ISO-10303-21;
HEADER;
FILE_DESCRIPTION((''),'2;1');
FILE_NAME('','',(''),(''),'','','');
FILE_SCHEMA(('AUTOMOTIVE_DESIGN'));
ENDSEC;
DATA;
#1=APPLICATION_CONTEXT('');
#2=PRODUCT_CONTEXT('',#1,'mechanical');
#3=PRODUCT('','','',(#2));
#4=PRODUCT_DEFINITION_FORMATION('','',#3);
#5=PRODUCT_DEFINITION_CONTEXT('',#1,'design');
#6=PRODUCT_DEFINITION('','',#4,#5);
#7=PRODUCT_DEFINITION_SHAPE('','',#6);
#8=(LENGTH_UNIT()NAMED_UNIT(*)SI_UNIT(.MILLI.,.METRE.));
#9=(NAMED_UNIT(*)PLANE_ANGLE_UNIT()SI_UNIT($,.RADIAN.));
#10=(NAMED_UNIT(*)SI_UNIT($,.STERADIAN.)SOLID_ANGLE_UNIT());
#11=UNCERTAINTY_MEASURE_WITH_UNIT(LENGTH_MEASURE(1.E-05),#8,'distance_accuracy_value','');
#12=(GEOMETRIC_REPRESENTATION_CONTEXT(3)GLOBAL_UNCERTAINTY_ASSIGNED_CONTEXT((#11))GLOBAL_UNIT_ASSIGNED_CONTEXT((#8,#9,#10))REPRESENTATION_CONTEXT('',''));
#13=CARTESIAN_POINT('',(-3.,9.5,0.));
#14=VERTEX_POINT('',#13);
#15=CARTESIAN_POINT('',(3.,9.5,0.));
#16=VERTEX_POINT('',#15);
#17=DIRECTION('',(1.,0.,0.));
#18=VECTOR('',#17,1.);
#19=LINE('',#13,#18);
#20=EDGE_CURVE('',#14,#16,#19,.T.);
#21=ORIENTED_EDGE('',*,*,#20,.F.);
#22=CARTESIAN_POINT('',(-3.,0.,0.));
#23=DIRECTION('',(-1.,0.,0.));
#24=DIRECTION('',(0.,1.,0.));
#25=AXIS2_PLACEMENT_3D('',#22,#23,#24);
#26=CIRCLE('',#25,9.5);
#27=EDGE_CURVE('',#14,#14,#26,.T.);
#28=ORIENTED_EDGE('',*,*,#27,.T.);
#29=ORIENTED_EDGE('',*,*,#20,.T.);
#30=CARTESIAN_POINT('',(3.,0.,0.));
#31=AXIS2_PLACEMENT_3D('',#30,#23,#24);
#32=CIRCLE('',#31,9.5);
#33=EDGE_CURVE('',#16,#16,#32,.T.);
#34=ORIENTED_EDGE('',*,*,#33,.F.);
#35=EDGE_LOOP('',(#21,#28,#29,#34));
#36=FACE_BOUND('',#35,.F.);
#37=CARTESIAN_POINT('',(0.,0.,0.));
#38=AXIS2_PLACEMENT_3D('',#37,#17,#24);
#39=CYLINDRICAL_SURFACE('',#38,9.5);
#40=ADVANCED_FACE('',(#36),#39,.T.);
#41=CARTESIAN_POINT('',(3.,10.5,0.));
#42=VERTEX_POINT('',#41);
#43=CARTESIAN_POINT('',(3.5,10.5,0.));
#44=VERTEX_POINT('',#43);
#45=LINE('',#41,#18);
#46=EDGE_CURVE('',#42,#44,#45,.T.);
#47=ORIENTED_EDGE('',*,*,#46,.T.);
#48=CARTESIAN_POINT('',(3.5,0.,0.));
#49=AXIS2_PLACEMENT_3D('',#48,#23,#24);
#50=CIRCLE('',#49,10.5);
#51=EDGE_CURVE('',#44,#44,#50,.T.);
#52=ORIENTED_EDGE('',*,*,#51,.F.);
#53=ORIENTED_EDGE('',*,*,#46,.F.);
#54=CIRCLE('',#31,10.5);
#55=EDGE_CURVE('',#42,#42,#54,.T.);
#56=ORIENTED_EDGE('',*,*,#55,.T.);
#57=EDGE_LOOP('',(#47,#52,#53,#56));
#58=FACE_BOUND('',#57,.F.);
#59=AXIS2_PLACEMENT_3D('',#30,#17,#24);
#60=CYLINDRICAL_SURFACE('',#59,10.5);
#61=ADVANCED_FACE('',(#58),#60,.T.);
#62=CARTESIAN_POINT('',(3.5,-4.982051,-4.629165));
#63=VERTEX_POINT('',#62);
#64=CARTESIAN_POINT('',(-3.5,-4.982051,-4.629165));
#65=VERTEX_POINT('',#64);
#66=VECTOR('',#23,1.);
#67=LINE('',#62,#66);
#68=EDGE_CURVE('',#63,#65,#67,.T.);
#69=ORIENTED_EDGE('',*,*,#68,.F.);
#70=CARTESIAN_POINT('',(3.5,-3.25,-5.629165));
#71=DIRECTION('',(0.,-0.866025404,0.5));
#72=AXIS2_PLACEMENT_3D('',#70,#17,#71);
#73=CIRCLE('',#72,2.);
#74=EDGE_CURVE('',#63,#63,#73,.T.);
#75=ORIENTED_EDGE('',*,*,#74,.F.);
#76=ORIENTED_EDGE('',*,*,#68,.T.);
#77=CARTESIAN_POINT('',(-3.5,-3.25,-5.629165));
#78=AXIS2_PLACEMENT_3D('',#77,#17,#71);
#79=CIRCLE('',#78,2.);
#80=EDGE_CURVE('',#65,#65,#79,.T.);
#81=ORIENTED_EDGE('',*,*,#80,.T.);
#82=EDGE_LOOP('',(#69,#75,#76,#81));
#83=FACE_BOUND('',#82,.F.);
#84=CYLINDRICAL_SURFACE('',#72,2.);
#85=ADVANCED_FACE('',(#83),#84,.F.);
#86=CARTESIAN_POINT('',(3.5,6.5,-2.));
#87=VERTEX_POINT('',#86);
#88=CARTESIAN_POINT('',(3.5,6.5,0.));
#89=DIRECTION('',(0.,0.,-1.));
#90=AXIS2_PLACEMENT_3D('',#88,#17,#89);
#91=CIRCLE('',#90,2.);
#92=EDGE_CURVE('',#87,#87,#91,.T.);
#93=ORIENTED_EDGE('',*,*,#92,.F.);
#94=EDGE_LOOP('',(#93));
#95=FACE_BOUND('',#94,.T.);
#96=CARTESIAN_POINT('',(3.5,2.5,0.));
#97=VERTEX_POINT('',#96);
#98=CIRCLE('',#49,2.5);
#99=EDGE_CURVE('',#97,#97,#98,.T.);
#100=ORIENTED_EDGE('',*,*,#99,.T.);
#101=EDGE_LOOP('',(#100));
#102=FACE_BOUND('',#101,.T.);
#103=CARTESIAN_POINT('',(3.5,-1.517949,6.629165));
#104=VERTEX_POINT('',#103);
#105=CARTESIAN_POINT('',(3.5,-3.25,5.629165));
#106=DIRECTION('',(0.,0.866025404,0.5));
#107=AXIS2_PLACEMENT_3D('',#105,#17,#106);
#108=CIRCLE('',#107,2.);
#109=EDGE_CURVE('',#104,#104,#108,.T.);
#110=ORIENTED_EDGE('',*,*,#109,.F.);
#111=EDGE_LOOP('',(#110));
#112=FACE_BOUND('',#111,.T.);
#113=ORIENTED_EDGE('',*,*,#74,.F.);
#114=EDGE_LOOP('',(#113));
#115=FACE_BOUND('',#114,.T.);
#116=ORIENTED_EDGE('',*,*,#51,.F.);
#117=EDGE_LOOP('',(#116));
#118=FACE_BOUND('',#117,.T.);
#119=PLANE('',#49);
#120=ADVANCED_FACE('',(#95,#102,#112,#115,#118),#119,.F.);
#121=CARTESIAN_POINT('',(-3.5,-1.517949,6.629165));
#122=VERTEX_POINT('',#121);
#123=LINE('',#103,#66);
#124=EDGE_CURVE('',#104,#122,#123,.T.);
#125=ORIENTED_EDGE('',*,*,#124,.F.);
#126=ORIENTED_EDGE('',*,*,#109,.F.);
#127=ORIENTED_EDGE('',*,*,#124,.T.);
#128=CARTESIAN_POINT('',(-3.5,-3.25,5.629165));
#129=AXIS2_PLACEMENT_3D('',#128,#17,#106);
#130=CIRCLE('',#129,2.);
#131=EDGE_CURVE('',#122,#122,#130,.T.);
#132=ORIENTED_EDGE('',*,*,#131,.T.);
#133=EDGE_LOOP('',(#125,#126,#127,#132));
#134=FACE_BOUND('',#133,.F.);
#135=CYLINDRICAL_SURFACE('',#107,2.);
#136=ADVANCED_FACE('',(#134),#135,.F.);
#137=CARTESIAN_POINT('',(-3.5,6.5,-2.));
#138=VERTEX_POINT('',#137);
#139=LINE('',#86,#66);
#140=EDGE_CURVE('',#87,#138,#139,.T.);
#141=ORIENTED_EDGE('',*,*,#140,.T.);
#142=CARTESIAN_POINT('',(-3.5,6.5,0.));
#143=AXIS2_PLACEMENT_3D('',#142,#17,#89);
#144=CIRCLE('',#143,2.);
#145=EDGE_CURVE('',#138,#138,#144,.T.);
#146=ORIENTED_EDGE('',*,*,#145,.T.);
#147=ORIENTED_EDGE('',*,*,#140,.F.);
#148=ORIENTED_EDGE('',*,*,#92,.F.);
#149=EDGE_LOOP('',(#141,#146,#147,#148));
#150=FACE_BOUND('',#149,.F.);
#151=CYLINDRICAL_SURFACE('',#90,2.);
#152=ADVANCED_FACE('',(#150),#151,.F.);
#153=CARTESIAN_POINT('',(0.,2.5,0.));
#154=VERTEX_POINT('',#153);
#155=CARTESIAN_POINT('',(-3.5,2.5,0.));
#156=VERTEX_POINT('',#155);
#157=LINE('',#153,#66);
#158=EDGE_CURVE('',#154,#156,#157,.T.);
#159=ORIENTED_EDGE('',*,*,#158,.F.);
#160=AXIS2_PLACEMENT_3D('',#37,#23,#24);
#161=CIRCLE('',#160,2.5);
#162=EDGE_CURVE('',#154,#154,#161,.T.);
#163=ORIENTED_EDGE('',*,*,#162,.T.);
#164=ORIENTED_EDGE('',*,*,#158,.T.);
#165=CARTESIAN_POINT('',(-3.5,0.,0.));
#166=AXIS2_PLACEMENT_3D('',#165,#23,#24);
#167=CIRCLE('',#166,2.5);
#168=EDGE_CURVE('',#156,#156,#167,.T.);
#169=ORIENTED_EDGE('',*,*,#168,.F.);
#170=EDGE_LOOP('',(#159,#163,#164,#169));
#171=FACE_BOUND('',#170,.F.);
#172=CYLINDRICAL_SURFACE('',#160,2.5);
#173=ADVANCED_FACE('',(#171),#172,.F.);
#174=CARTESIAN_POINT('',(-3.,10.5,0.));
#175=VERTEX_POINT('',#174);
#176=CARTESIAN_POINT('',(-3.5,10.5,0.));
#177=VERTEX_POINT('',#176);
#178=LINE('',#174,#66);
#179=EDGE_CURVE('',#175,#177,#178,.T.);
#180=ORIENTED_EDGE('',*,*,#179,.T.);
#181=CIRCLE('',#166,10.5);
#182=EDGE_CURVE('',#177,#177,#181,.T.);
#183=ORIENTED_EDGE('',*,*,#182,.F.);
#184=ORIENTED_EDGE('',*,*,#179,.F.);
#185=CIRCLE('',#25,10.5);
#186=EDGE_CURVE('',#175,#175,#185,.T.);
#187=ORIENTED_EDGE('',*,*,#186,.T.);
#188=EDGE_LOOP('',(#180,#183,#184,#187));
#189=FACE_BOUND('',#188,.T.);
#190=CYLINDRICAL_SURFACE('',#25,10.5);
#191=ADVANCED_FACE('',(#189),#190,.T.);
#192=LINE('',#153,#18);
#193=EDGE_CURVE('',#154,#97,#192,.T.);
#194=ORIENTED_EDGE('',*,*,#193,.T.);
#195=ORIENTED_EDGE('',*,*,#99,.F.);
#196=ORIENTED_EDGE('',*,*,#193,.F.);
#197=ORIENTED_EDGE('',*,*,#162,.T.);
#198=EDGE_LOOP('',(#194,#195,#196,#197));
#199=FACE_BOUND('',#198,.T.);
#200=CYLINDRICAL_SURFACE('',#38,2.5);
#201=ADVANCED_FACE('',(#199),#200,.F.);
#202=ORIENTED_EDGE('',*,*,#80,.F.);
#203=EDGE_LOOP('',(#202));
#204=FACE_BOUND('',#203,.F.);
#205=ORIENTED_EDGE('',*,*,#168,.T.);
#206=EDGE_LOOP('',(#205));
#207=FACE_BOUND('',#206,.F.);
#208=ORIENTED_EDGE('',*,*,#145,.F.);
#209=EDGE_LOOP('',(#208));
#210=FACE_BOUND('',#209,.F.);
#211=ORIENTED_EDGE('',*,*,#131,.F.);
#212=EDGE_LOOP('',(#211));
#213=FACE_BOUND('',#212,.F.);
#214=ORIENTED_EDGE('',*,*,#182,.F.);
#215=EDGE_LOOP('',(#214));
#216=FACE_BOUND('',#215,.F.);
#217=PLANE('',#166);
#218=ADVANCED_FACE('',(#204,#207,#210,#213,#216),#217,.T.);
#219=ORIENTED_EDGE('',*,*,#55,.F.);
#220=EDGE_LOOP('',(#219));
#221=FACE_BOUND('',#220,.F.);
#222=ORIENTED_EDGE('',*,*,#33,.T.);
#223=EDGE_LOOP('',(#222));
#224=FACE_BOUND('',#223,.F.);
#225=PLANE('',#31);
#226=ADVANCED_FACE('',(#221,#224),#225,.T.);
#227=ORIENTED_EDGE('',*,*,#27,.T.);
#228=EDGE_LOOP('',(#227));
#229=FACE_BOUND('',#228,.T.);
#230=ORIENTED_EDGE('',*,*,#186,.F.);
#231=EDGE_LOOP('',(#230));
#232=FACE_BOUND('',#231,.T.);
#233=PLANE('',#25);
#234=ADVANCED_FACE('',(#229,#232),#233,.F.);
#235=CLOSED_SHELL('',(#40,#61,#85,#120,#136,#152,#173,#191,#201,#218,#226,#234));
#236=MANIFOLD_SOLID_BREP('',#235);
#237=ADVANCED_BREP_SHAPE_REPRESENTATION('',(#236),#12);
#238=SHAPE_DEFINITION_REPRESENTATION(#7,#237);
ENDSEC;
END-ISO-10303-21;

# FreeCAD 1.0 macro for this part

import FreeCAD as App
import Part
import Sketcher
from FreeCAD import Vector
Q = App.Units.Quantity

doc = App.newDocument("Part")
body = doc.addObject("PartDesign::Body", "Body")

# Sketch on XY plane
sketch1 = body.newObject("Sketcher::SketchObject", "Sketch")
sketch1.AttachmentSupport = (doc.getObject("XY_Plane"), [""])
sketch1.MapMode = "FlatFace"
sketch1.addGeometry([
    Part.LineSegment(Vector(3, 9.5, 0), Vector(-3, 9.5, 0)),  # 0
    Part.LineSegment(Vector(-3, 9.5, 0), Vector(-3, 10.5, 0)),  # 1
    Part.LineSegment(Vector(-3, 10.5, 0), Vector(-3.5, 10.5, 0)),  # 2
    Part.LineSegment(Vector(-3.5, 10.5, 0), Vector(-3.5, 2.5, 0)),  # 3
    Part.LineSegment(Vector(-3.5, 2.5, 0), Vector(3.5, 2.5, 0)),  # 4
    Part.LineSegment(Vector(3.5, 2.5, 0), Vector(3.5, 10.5, 0)),  # 5
    Part.LineSegment(Vector(3.5, 10.5, 0), Vector(3, 10.5, 0)),  # 6
    Part.LineSegment(Vector(3, 10.5, 0), Vector(3, 9.5, 0)),  # 7
], False)
sketch1.addConstraint([
    Sketcher.Constraint("Coincident", 0, 2, 1, 1),
    Sketcher.Constraint("Coincident", 1, 2, 2, 1),
    Sketcher.Constraint("Coincident", 2, 2, 3, 1),
    Sketcher.Constraint("Coincident", 3, 2, 4, 1),
    Sketcher.Constraint("Coincident", 4, 2, 5, 1),
    Sketcher.Constraint("Coincident", 5, 2, 6, 1),
    Sketcher.Constraint("Coincident", 6, 2, 7, 1),
    Sketcher.Constraint("Coincident", 7, 2, 0, 1),
    Sketcher.Constraint("Horizontal", 0),
    Sketcher.Constraint("Vertical", 1),
    Sketcher.Constraint("Horizontal", 2),
    Sketcher.Constraint("Vertical", 3),
    Sketcher.Constraint("Horizontal", 4),
    Sketcher.Constraint("Vertical", 5),
    Sketcher.Constraint("Horizontal", 6),
    Sketcher.Constraint("Vertical", 7),
    Sketcher.Constraint("Symmetric", 2, 2, 5, 2, -2),
    Sketcher.Constraint("Equal", 2, 6),
    Sketcher.Constraint("DistanceY", 1, 1, 1, 2, Q("1 mm")),
    Sketcher.Constraint("DistanceX", 2, 2, 2, 1, Q("0.5 mm")),
    Sketcher.Constraint("DistanceX", 0, 2, -1, 1, Q("3 mm")),
    Sketcher.Constraint("DistanceY", -1, 1, 1, 2, Q("10.5 mm")),
    Sketcher.Constraint("DistanceY", -1, 1, 3, 2, Q("2.5 mm")),
])
revolution = body.newObject("PartDesign::Revolution", "Revolution")
revolution.Profile = sketch1
revolution.ReferenceAxis = (sketch1, ["H_Axis"])
revolution.Angle = 360

# Sketch on YZ plane
sketch2 = body.newObject("Sketcher::SketchObject", "Sketch001")
sketch2.AttachmentSupport = (doc.getObject("YZ_Plane"), [""])
sketch2.MapMode = "FlatFace"
sketch2.AttachmentOffset = App.Placement(Vector(0, 0, 3.5), App.Rotation())
sketch2.addGeometry(Part.Circle(Vector(6.5, 0, 0), Vector(0, 0, 1), 2), False)
sketch2.addConstraint([
    Sketcher.Constraint("PointOnObject", 0, 3, -1),
    Sketcher.Constraint("Diameter", 0, Q("4 mm")),
    Sketcher.Constraint("DistanceX", -1, 1, 0, 3, Q("6.5 mm")),
])
pocket1 = body.newObject("PartDesign::Pocket", "Pocket")
pocket1.Profile = sketch2
pocket1.Type = "ThroughAll"
doc.recompute()

polarpattern = body.newObject("PartDesign::PolarPattern", "PolarPattern")
polarpattern.Originals = [pocket1]
polarpattern.Axis = (doc.getObject("X_Axis"), [""])
polarpattern.Angle = 360
polarpattern.Occurrences = 3
body.Tip = polarpattern

doc.recompute()
